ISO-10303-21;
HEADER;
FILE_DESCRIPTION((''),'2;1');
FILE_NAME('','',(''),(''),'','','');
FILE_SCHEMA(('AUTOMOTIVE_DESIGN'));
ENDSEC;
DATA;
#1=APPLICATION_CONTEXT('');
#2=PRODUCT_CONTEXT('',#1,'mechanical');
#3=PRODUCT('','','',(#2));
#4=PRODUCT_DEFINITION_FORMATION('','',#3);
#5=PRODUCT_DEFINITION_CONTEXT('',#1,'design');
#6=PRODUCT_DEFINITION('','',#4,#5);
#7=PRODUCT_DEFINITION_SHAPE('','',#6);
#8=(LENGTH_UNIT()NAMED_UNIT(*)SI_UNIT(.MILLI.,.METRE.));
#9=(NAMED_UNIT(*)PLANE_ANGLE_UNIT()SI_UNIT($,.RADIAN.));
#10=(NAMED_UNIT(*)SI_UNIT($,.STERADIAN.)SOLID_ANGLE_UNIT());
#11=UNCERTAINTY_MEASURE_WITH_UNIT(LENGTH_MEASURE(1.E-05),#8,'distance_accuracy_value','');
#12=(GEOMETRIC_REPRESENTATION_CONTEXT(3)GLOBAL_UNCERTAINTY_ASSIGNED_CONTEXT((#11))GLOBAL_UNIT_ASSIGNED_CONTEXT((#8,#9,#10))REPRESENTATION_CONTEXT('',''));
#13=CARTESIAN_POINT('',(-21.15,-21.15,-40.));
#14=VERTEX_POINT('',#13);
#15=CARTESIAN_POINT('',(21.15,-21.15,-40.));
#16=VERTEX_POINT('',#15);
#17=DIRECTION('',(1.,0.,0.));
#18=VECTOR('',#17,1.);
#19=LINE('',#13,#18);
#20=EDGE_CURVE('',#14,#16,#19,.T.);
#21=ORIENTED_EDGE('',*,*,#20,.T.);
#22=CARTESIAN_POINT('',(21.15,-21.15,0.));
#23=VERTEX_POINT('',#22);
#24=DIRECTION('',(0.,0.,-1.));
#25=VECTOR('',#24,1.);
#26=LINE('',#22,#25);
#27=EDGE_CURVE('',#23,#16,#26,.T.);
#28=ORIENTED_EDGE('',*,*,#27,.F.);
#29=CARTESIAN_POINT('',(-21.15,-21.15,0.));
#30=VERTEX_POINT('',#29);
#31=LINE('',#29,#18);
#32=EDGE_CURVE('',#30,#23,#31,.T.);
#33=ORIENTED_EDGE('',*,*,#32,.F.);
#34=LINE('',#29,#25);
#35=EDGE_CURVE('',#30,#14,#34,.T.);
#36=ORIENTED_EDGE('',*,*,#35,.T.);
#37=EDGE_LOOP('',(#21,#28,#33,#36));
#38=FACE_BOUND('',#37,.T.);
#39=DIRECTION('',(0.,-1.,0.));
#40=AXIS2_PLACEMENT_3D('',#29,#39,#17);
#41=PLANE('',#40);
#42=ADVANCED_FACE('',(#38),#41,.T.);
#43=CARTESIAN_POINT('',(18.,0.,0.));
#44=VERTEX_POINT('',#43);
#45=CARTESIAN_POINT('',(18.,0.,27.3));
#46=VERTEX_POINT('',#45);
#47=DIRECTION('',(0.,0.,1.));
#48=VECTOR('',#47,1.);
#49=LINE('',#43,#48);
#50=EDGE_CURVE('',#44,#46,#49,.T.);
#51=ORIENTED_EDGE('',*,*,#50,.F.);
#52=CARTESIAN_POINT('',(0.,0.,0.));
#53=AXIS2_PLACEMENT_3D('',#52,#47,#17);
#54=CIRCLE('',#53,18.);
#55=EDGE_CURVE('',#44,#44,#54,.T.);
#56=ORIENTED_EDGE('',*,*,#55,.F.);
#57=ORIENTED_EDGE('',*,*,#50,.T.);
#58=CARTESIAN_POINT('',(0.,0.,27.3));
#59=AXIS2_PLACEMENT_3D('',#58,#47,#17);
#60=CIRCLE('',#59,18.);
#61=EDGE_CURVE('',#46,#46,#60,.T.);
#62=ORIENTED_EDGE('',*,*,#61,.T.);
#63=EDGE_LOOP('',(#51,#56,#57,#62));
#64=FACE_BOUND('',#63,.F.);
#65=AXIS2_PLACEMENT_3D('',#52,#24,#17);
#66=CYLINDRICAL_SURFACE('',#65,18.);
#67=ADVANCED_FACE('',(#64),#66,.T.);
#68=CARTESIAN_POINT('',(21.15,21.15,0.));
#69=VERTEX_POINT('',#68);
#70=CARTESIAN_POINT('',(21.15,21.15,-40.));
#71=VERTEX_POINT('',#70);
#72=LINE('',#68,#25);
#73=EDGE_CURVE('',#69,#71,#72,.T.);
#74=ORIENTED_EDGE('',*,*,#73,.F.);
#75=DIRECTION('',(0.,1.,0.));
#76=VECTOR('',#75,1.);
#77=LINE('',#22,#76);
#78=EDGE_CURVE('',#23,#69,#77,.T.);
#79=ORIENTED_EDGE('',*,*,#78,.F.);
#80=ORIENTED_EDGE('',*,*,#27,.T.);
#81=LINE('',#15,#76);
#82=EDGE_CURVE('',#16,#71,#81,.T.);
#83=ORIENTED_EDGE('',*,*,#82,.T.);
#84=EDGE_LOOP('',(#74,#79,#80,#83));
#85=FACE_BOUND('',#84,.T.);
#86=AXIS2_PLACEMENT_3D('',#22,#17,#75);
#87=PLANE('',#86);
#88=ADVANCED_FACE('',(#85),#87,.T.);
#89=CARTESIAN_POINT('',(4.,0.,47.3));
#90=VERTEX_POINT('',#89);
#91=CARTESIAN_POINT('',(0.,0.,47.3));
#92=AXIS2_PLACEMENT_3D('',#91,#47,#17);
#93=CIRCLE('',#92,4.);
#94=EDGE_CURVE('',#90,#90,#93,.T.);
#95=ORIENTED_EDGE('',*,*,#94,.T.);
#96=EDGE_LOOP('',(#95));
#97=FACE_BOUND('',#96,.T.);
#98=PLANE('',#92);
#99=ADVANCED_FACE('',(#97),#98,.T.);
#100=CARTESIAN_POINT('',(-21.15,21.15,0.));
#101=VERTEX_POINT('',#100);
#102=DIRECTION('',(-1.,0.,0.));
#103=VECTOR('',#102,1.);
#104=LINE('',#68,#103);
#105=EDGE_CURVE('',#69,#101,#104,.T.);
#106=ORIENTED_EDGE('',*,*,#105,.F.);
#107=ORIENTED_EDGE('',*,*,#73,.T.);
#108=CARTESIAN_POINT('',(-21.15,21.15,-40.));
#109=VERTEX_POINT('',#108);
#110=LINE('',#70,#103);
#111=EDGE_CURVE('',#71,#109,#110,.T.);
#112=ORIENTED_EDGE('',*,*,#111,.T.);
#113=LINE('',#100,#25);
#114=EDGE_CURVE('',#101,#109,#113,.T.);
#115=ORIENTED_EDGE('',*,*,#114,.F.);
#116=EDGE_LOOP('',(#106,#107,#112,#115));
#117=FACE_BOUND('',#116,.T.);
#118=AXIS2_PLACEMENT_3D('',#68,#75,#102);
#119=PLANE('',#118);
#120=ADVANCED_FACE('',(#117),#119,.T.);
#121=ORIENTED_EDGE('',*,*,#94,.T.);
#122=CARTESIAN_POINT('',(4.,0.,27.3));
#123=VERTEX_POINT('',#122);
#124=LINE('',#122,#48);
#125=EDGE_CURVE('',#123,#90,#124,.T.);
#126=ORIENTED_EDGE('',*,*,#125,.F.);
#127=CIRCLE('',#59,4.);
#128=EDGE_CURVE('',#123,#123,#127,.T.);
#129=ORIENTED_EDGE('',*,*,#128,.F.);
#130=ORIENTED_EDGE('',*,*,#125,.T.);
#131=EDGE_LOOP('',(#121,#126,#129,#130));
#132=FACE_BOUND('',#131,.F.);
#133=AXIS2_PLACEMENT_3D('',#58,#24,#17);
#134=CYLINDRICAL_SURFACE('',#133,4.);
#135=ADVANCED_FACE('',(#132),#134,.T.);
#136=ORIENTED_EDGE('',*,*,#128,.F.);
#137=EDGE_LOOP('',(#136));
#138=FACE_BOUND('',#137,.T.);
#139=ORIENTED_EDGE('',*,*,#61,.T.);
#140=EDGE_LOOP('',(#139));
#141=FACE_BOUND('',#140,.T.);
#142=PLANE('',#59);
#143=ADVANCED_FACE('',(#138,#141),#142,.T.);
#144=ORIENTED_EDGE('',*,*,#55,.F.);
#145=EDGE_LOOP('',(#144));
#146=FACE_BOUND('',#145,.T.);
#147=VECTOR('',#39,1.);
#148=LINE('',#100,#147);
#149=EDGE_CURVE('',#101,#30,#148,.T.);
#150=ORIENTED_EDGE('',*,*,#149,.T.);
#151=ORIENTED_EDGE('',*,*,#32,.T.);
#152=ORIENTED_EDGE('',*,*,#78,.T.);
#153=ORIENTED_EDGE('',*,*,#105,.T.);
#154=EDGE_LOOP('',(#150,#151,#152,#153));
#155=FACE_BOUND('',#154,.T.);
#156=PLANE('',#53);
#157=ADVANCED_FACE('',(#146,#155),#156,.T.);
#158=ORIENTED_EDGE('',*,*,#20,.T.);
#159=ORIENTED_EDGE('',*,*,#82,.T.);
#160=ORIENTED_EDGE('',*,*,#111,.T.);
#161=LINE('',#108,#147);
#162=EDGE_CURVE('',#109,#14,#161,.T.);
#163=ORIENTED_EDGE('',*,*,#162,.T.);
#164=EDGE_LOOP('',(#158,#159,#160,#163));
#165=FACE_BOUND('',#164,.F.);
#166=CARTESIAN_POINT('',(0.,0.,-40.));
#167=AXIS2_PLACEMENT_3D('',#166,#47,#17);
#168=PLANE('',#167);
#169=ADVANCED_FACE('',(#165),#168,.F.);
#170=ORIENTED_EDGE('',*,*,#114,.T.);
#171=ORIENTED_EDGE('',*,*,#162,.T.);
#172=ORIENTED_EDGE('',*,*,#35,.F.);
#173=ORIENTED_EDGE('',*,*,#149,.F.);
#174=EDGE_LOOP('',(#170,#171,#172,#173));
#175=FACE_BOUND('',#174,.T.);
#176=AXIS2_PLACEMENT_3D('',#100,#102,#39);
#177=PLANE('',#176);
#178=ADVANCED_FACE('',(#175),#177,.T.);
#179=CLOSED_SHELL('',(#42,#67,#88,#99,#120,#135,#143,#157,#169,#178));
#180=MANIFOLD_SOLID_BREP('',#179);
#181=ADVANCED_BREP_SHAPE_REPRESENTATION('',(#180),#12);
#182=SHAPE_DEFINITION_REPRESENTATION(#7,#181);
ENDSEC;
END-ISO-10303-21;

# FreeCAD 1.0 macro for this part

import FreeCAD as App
import Part
import Sketcher

V = App.Vector


def add_polygon(sketch, points):
    """Adds a closed chain of lines whose ends are joined by coincident constraints."""
    first, n = sketch.GeometryCount, len(points)
    for a, b in zip(points, points[1:] + points[:1]):
        sketch.addGeometry(Part.LineSegment(App.Vector(*a, 0), App.Vector(*b, 0)), False)
    for i in range(n):
        sketch.addConstraint(Sketcher.Constraint("Coincident", first + i, 2, first + (i + 1) % n, 1))

doc = App.newDocument("Part")
params = doc.addObject("Spreadsheet::Sheet", "Params")
for row, (alias, value) in enumerate([
    ("sketch1_width", "42.3 mm"),
    ("pad1_length", "40 mm"),
    ("sketch2_diameter", "36 mm"),
    ("pad2_length", "27.3 mm"),
    ("sketch3_diameter", "8 mm"),
    ("pad3_length", "20 mm"),
], start=1):
    params.set(f"A{row}", alias)
    params.set(f"B{row}", "=" + value)
    params.setAlias(f"B{row}", alias)

body = doc.addObject("PartDesign::Body", "Body")

sketch1 = body.newObject("Sketcher::SketchObject", "Sketch")
sketch1.AttachmentSupport = (doc.getObject("XY_Plane"), [""])
sketch1.MapMode = "FlatFace"
add_polygon(sketch1, [(-21, 21), (-21, -21), (21, -21), (21, 21)])
sketch1.addConstraint(Sketcher.Constraint("Vertical", 0))
sketch1.addConstraint(Sketcher.Constraint("Horizontal", 1))
sketch1.addConstraint(Sketcher.Constraint("Vertical", 2))
sketch1.addConstraint(Sketcher.Constraint("Horizontal", 3))
sketch1.addConstraint(Sketcher.Constraint("Symmetric", 0, 2, 2, 2, -1, 1))
sketch1.addConstraint(Sketcher.Constraint("Equal", 3, 0))
sketch1.addConstraint(Sketcher.Constraint("DistanceX", 1, 1, 1, 2, 42.3))
sketch1.setExpression("Constraints[10]", "Params.sketch1_width")
pad1 = body.newObject("PartDesign::Pad", "Pad")
pad1.Profile = sketch1
pad1.setExpression("Length", "Params.pad1_length")
pad1.Reversed = True

sketch2 = body.newObject("Sketcher::SketchObject", "Sketch001")
sketch2.AttachmentSupport = (doc.getObject("XY_Plane"), [""])
sketch2.MapMode = "FlatFace"
sketch2.addGeometry(Part.Circle(V(0, 0, 0), V(0, 0, 1), 18), False)
sketch2.addConstraint(Sketcher.Constraint("Coincident", 0, 3, -1, 1))
sketch2.addConstraint(Sketcher.Constraint("Diameter", 0, 36.0))
sketch2.setExpression("Constraints[1]", "Params.sketch2_diameter")
pad2 = body.newObject("PartDesign::Pad", "Pad001")
pad2.Profile = sketch2
pad2.setExpression("Length", "Params.pad2_length")

sketch3 = body.newObject("Sketcher::SketchObject", "Sketch002")
sketch3.AttachmentSupport = (doc.getObject("XY_Plane"), [""])
sketch3.MapMode = "FlatFace"
sketch3.AttachmentOffset = App.Placement(V(0, 0, 27.3), App.Rotation())
sketch3.addGeometry(Part.Circle(V(0, 0, 0), V(0, 0, 1), 4), False)
sketch3.addConstraint(Sketcher.Constraint("Coincident", 0, 3, -1, 1))
sketch3.addConstraint(Sketcher.Constraint("Diameter", 0, 8.0))
sketch3.setExpression("Constraints[1]", "Params.sketch3_diameter")
pad3 = body.newObject("PartDesign::Pad", "Pad002")
pad3.Profile = sketch3
pad3.setExpression("Length", "Params.pad3_length")

doc.recompute()
